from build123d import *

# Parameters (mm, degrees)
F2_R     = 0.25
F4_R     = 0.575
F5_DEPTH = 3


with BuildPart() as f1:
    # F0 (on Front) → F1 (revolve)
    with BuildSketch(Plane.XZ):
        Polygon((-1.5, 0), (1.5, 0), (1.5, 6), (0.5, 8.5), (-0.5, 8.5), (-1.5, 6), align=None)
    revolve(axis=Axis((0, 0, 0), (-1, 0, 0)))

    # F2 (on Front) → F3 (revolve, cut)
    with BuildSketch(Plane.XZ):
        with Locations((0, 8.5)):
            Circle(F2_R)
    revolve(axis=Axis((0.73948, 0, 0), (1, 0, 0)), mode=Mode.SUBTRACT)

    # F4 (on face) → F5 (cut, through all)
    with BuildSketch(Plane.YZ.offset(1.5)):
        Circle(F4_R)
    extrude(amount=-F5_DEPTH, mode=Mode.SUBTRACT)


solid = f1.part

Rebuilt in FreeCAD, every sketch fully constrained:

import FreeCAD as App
import Part
import Sketcher
from FreeCAD import Vector
Q = App.Units.Quantity

doc = App.newDocument("Part")
body = doc.addObject("PartDesign::Body", "Body")

sketch1 = body.newObject("Sketcher::SketchObject", "Sketch")
sketch1.AttachmentSupport = (doc.getObject("XZ_Plane"), [""])
sketch1.MapMode = "FlatFace"
sketch1.addGeometry(Part.LineSegment(Vector(-1.5, 0, 0), Vector(1.5, 0, 0)), False)
sketch1.addGeometry(Part.LineSegment(Vector(1.5, 0, 0), Vector(1.5, 6, 0)), False)
sketch1.addGeometry(Part.LineSegment(Vector(1.5, 6, 0), Vector(0.5, 8.5, 0)), False)
sketch1.addGeometry(Part.LineSegment(Vector(0.5, 8.5, 0), Vector(-0.5, 8.5, 0)), False)
sketch1.addGeometry(Part.LineSegment(Vector(-0.5, 8.5, 0), Vector(-1.5, 6, 0)), False)
sketch1.addGeometry(Part.LineSegment(Vector(-1.5, 6, 0), Vector(-1.5, 0, 0)), False)
sketch1.addConstraint(Sketcher.Constraint("Coincident", 0, 2, 1, 1))
sketch1.addConstraint(Sketcher.Constraint("Coincident", 1, 2, 2, 1))
sketch1.addConstraint(Sketcher.Constraint("Coincident", 2, 2, 3, 1))
sketch1.addConstraint(Sketcher.Constraint("Coincident", 3, 2, 4, 1))
sketch1.addConstraint(Sketcher.Constraint("Coincident", 4, 2, 5, 1))
sketch1.addConstraint(Sketcher.Constraint("Coincident", 5, 2, 0, 1))
sketch1.addConstraint(Sketcher.Constraint("Horizontal", 0))
sketch1.addConstraint(Sketcher.Constraint("Vertical", 1))
sketch1.addConstraint(Sketcher.Constraint("Horizontal", 3))
sketch1.addConstraint(Sketcher.Constraint("Vertical", 5))
sketch1.addConstraint(Sketcher.Constraint("Symmetric", 0, 2, 5, 2, -1, 1))
sketch1.addConstraint(Sketcher.Constraint("Horizontal", 1, 2, 4, 2))
sketch1.addConstraint(Sketcher.Constraint("Equal", 2, 4))
sketch1.addConstraint(Sketcher.Constraint("DistanceX", 0, 1, 0, 2, Q("3 mm")))
sketch1.addConstraint(Sketcher.Constraint("DistanceX", 3, 2, 3, 1, Q("1 mm")))
sketch1.addConstraint(Sketcher.Constraint("DistanceY", 1, 1, 1, 2, Q("6 mm")))
sketch1.addConstraint(Sketcher.Constraint("DistanceY", -1, 1, 2, 2, Q("8.5 mm")))
revolution = body.newObject("PartDesign::Revolution", "Revolution")
revolution.Profile = sketch1
revolution.ReferenceAxis = (sketch1, ["H_Axis"])
revolution.Angle = 360

sketch2 = body.newObject("Sketcher::SketchObject", "Sketch001")
sketch2.AttachmentSupport = (doc.getObject("XZ_Plane"), [""])
sketch2.MapMode = "FlatFace"
sketch2.addGeometry(Part.Circle(Vector(0, 8.5, 0), Vector(0, 0, 1), 0.25), False)
sketch2.addConstraint(Sketcher.Constraint("PointOnObject", 0, 3, -2))
sketch2.addConstraint(Sketcher.Constraint("Diameter", 0, Q("0.5 mm")))
sketch2.addConstraint(Sketcher.Constraint("DistanceY", -1, 1, 0, 3, Q("8.5 mm")))
groove = body.newObject("PartDesign::Groove", "Groove")
groove.Profile = sketch2
groove.ReferenceAxis = (sketch2, ["H_Axis"])
groove.Angle = 360

sketch3 = body.newObject("Sketcher::SketchObject", "Sketch002")
sketch3.AttachmentSupport = (doc.getObject("YZ_Plane"), [""])
sketch3.MapMode = "FlatFace"
sketch3.AttachmentOffset = App.Placement(Vector(0, 0, 1.5), App.Rotation())
sketch3.addGeometry(Part.Circle(Vector(0, 0, 0), Vector(0, 0, 1), 0.6), False)
sketch3.addConstraint(Sketcher.Constraint("Coincident", 0, 3, -1, 1))
sketch3.addConstraint(Sketcher.Constraint("Diameter", 0, Q("1.15 mm")))
pocket1 = body.newObject("PartDesign::Pocket", "Pocket")
pocket1.Profile = sketch3
pocket1.Type = "ThroughAll"

doc.recompute()
